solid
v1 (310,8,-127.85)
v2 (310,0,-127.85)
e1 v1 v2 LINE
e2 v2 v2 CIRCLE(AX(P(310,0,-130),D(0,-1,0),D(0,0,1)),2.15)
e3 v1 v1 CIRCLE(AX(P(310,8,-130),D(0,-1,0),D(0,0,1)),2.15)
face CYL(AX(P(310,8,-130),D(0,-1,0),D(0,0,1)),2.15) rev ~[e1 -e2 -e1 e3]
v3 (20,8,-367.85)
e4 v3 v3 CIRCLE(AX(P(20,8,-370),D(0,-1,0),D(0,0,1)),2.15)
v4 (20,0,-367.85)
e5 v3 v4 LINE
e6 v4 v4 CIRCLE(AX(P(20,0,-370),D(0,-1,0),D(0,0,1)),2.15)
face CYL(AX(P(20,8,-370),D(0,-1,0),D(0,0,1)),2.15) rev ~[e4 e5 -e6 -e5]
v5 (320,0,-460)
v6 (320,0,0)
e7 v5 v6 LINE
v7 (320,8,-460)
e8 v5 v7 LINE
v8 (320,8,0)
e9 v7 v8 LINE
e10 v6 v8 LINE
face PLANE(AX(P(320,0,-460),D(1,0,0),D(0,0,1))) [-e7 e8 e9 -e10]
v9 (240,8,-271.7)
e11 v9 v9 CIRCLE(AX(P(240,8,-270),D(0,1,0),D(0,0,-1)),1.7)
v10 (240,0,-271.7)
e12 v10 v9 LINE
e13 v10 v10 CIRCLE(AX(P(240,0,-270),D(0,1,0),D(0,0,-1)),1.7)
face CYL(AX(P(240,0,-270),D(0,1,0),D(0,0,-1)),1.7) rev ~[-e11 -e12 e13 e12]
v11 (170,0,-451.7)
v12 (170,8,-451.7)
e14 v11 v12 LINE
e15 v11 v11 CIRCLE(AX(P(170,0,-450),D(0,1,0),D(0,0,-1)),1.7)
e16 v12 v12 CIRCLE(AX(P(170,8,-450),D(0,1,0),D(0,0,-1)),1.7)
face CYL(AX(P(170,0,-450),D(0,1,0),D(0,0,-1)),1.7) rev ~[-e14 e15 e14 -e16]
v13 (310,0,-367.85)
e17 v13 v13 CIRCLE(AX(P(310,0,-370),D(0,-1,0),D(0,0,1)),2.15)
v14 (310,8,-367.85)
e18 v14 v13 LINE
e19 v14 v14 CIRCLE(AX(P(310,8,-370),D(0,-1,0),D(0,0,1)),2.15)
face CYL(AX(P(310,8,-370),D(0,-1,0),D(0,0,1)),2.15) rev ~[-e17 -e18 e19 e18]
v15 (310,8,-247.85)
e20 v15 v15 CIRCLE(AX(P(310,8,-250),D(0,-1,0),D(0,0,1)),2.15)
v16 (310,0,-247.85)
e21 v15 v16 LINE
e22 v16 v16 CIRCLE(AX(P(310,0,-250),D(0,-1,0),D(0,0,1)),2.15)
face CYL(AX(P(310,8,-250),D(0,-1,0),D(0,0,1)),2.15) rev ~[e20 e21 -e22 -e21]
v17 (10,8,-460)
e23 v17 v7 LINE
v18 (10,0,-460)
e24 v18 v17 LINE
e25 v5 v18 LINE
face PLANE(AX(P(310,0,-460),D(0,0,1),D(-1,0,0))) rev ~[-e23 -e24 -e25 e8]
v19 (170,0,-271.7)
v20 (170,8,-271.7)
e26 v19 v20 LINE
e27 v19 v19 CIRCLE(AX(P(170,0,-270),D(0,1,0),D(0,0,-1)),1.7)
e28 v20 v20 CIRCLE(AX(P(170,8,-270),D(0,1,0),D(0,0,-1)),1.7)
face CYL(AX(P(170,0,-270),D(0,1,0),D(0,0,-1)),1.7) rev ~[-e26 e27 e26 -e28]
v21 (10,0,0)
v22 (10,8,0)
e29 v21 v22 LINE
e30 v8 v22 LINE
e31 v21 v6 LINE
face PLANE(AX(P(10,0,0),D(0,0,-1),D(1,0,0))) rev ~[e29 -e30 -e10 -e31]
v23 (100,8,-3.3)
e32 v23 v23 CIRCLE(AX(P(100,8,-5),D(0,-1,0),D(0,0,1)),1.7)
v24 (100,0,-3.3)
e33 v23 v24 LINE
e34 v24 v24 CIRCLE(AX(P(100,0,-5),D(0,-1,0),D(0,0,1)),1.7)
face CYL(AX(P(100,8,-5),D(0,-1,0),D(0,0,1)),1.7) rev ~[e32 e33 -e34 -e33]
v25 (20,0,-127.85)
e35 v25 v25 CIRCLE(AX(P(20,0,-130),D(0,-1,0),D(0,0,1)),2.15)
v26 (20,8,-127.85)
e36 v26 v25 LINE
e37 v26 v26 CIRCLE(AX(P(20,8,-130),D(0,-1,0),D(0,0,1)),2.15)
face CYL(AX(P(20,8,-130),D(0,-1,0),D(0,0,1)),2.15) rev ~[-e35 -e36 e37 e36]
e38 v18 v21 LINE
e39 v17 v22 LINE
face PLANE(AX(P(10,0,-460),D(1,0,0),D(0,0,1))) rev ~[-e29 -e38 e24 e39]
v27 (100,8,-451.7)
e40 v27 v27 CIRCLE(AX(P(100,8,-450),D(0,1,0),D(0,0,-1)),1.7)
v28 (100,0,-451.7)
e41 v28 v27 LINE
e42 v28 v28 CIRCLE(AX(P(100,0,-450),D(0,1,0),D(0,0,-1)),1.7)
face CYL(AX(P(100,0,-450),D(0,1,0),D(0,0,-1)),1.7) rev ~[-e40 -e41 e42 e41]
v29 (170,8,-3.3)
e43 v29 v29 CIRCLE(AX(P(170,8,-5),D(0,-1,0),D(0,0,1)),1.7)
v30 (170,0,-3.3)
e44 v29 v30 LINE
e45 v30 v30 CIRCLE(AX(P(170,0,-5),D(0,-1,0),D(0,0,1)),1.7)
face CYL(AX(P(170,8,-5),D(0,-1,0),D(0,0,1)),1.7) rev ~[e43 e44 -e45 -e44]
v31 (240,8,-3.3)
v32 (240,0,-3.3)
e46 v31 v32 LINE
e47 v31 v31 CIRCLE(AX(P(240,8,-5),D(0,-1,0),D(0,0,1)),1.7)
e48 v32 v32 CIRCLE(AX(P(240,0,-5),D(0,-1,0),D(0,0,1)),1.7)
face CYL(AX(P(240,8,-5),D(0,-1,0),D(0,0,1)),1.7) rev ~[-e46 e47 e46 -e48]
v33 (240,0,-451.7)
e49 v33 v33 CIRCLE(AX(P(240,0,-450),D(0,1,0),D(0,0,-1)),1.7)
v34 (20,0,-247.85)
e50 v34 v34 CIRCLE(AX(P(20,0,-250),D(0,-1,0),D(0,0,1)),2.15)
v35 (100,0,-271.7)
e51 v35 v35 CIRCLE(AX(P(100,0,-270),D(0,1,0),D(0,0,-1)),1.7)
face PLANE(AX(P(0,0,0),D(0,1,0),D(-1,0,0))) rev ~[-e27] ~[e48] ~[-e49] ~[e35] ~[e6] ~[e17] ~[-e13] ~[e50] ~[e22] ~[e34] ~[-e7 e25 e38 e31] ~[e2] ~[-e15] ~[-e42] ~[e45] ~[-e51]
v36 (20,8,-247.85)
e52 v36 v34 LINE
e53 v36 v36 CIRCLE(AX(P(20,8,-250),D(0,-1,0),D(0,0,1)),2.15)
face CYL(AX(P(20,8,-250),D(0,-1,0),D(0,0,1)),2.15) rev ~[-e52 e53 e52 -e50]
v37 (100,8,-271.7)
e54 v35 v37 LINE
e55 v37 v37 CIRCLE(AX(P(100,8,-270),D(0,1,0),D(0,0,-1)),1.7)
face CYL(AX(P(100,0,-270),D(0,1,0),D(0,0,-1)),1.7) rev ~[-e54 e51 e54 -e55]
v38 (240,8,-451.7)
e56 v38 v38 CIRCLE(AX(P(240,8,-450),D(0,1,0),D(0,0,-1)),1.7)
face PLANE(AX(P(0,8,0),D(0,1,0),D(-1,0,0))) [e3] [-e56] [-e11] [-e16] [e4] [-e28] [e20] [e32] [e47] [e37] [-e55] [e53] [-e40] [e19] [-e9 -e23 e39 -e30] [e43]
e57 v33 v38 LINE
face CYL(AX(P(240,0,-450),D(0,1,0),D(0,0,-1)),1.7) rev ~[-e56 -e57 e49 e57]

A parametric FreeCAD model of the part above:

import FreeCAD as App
import Part
import Sketcher
from FreeCAD import Vector

doc = App.newDocument("Part")
body = doc.addObject("PartDesign::Body", "Body")

# Sketch on XZ plane
sketch1 = body.newObject("Sketcher::SketchObject", "Sketch")
sketch1.AttachmentSupport = (doc.getObject("XZ_Plane"), [""])
sketch1.MapMode = "FlatFace"
sketch1.addGeometry(Part.LineSegment(Vector(10, -460, 0), Vector(10, 0, 0)), False)
sketch1.addGeometry(Part.LineSegment(Vector(10, 0, 0), Vector(320, 0, 0)), False)
sketch1.addGeometry(Part.LineSegment(Vector(320, 0, 0), Vector(320, -460, 0)), False)
sketch1.addGeometry(Part.LineSegment(Vector(320, -460, 0), Vector(10, -460, 0)), False)
sketch1.addConstraint(Sketcher.Constraint("Coincident", 0, 2, 1, 1))
sketch1.addConstraint(Sketcher.Constraint("Coincident", 1, 2, 2, 1))
sketch1.addConstraint(Sketcher.Constraint("Coincident", 2, 2, 3, 1))
sketch1.addConstraint(Sketcher.Constraint("Coincident", 3, 2, 0, 1))
sketch1.addConstraint(Sketcher.Constraint("Vertical", 0))
sketch1.addConstraint(Sketcher.Constraint("Horizontal", 1))
sketch1.addConstraint(Sketcher.Constraint("Vertical", 2))
sketch1.addConstraint(Sketcher.Constraint("Horizontal", 3))
sketch1.addConstraint(Sketcher.Constraint("PointOnObject", 0, 2, -1))
sketch1.addConstraint(Sketcher.Constraint("DistanceX", -1, 1, 0, 2, 10.0))
sketch1.addConstraint(Sketcher.Constraint("DistanceX", 1, 1, 1, 2, 310.0))
sketch1.addConstraint(Sketcher.Constraint("DistanceY", 0, 1, 0, 2, 460.0))
pad1 = body.newObject("PartDesign::Pad", "Pad")
pad1.Profile = sketch1
pad1.Length = 8
pad1.Reversed = True

# Sketch on XZ plane
sketch2 = body.newObject("Sketcher::SketchObject", "Sketch001")
sketch2.AttachmentSupport = (doc.getObject("XZ_Plane"), [""])
sketch2.MapMode = "FlatFace"
sketch2.AttachmentOffset = App.Placement(Vector(0, 0, -8), App.Rotation())
sketch2.addGeometry(Part.Circle(Vector(310, -130, 0), Vector(0, 0, 1), 2.15), False)
sketch2.addGeometry(Part.Circle(Vector(310, -250, 0), Vector(0, 0, 1), 2.15), False)
sketch2.addGeometry(Part.Circle(Vector(310, -370, 0), Vector(0, 0, 1), 2.15), False)
sketch2.addGeometry(Part.Circle(Vector(20, -130, 0), Vector(0, 0, 1), 2.15), False)
sketch2.addGeometry(Part.Circle(Vector(20, -250, 0), Vector(0, 0, 1), 2.15), False)
sketch2.addGeometry(Part.Circle(Vector(20, -370, 0), Vector(0, 0, 1), 2.15), False)
sketch2.addConstraint(Sketcher.Constraint("Equal", 0, 1))
sketch2.addConstraint(Sketcher.Constraint("Equal", 1, 2))
sketch2.addConstraint(Sketcher.Constraint("Equal", 2, 3))
sketch2.addConstraint(Sketcher.Constraint("Equal", 3, 4))
sketch2.addConstraint(Sketcher.Constraint("Equal", 4, 5))
sketch2.addConstraint(Sketcher.Constraint("Horizontal", 0, 3, 3, 3))
sketch2.addConstraint(Sketcher.Constraint("Horizontal", 1, 3, 4, 3))
sketch2.addConstraint(Sketcher.Constraint("Horizontal", 2, 3, 5, 3))
sketch2.addConstraint(Sketcher.Constraint("Vertical", 0, 3, 1, 3))
sketch2.addConstraint(Sketcher.Constraint("Vertical", 1, 3, 2, 3))
sketch2.addConstraint(Sketcher.Constraint("Vertical", 3, 3, 4, 3))
sketch2.addConstraint(Sketcher.Constraint("Vertical", 4, 3, 5, 3))
sketch2.addConstraint(Sketcher.Constraint("Diameter", 0, 4.3))
sketch2.addConstraint(Sketcher.Constraint("DistanceX", -1, 1, 0, 3, 310.0))
sketch2.addConstraint(Sketcher.Constraint("DistanceY", 0, 3, -1, 1, 130.0))
sketch2.addConstraint(Sketcher.Constraint("DistanceY", 1, 3, -1, 1, 250.0))
sketch2.addConstraint(Sketcher.Constraint("DistanceY", 2, 3, -1, 1, 370.0))
sketch2.addConstraint(Sketcher.Constraint("DistanceX", -1, 1, 3, 3, 20.0))
doc.recompute()
hole = body.newObject("PartDesign::Hole", "Hole")
hole.Profile = sketch2
hole.ThreadType = "None"
hole.Diameter = 4.3
hole.DepthType = "ThroughAll"
hole.Reversed = True

# Sketch on XZ plane
sketch3 = body.newObject("Sketcher::SketchObject", "Sketch002")
sketch3.AttachmentSupport = (doc.getObject("XZ_Plane"), [""])
sketch3.MapMode = "FlatFace"
sketch3.AttachmentOffset = App.Placement(Vector(0, 0, -8), App.Rotation())
sketch3.addGeometry(Part.Circle(Vector(100, -5, 0), Vector(0, 0, 1), 1.7), False)
sketch3.addGeometry(Part.Circle(Vector(170, -5, 0), Vector(0, 0, 1), 1.7), False)
sketch3.addGeometry(Part.Circle(Vector(240, -5, 0), Vector(0, 0, 1), 1.7), False)
sketch3.addConstraint(Sketcher.Constraint("Equal", 0, 1))
sketch3.addConstraint(Sketcher.Constraint("Equal", 1, 2))
sketch3.addConstraint(Sketcher.Constraint("Horizontal", 0, 3, 1, 3))
sketch3.addConstraint(Sketcher.Constraint("Horizontal", 1, 3, 2, 3))
sketch3.addConstraint(Sketcher.Constraint("Diameter", 0, 3.4))
sketch3.addConstraint(Sketcher.Constraint("DistanceX", -1, 1, 0, 3, 100.0))
sketch3.addConstraint(Sketcher.Constraint("DistanceY", 0, 3, -1, 1, 5.0))
sketch3.addConstraint(Sketcher.Constraint("DistanceX", -1, 1, 1, 3, 170.0))
sketch3.addConstraint(Sketcher.Constraint("DistanceX", -1, 1, 2, 3, 240.0))
doc.recompute()
hole2 = body.newObject("PartDesign::Hole", "Hole001")
hole2.Profile = sketch3
hole2.ThreadType = "None"
hole2.Diameter = 3.4
hole2.DepthType = "ThroughAll"
hole2.Reversed = True

# Sketch on XZ plane
sketch4 = body.newObject("Sketcher::SketchObject", "Sketch003")
sketch4.AttachmentSupport = (doc.getObject("XZ_Plane"), [""])
sketch4.MapMode = "FlatFace"
sketch4.addGeometry(Part.Circle(Vector(100, -270, 0), Vector(0, 0, 1), 1.7), False)
sketch4.addGeometry(Part.Circle(Vector(170, -270, 0), Vector(0, 0, 1), 1.7), False)
sketch4.addGeometry(Part.Circle(Vector(240, -270, 0), Vector(0, 0, 1), 1.7), False)
sketch4.addGeometry(Part.Circle(Vector(100, -450, 0), Vector(0, 0, 1), 1.7), False)
sketch4.addGeometry(Part.Circle(Vector(170, -450, 0), Vector(0, 0, 1), 1.7), False)
sketch4.addGeometry(Part.Circle(Vector(240, -450, 0), Vector(0, 0, 1), 1.7), False)
sketch4.addConstraint(Sketcher.Constraint("Equal", 0, 1))
sketch4.addConstraint(Sketcher.Constraint("Equal", 1, 2))
sketch4.addConstraint(Sketcher.Constraint("Equal", 2, 3))
sketch4.addConstraint(Sketcher.Constraint("Equal", 3, 4))
sketch4.addConstraint(Sketcher.Constraint("Equal", 4, 5))
sketch4.addConstraint(Sketcher.Constraint("Horizontal", 0, 3, 1, 3))
sketch4.addConstraint(Sketcher.Constraint("Horizontal", 1, 3, 2, 3))
sketch4.addConstraint(Sketcher.Constraint("Horizontal", 3, 3, 4, 3))
sketch4.addConstraint(Sketcher.Constraint("Horizontal", 4, 3, 5, 3))
sketch4.addConstraint(Sketcher.Constraint("Vertical", 0, 3, 3, 3))
sketch4.addConstraint(Sketcher.Constraint("Vertical", 1, 3, 4, 3))
sketch4.addConstraint(Sketcher.Constraint("Vertical", 2, 3, 5, 3))
sketch4.addConstraint(Sketcher.Constraint("Diameter", 0, 3.4))
sketch4.addConstraint(Sketcher.Constraint("DistanceX", -1, 1, 0, 3, 100.0))
sketch4.addConstraint(Sketcher.Constraint("DistanceY", 0, 3, -1, 1, 270.0))
sketch4.addConstraint(Sketcher.Constraint("DistanceX", -1, 1, 1, 3, 170.0))
sketch4.addConstraint(Sketcher.Constraint("DistanceX", -1, 1, 2, 3, 240.0))
sketch4.addConstraint(Sketcher.Constraint("DistanceY", 3, 3, -1, 1, 450.0))
doc.recompute()
hole3 = body.newObject("PartDesign::Hole", "Hole002")
hole3.Profile = sketch4
hole3.ThreadType = "None"
hole3.Diameter = 3.4
hole3.DepthType = "ThroughAll"

doc.recompute()
